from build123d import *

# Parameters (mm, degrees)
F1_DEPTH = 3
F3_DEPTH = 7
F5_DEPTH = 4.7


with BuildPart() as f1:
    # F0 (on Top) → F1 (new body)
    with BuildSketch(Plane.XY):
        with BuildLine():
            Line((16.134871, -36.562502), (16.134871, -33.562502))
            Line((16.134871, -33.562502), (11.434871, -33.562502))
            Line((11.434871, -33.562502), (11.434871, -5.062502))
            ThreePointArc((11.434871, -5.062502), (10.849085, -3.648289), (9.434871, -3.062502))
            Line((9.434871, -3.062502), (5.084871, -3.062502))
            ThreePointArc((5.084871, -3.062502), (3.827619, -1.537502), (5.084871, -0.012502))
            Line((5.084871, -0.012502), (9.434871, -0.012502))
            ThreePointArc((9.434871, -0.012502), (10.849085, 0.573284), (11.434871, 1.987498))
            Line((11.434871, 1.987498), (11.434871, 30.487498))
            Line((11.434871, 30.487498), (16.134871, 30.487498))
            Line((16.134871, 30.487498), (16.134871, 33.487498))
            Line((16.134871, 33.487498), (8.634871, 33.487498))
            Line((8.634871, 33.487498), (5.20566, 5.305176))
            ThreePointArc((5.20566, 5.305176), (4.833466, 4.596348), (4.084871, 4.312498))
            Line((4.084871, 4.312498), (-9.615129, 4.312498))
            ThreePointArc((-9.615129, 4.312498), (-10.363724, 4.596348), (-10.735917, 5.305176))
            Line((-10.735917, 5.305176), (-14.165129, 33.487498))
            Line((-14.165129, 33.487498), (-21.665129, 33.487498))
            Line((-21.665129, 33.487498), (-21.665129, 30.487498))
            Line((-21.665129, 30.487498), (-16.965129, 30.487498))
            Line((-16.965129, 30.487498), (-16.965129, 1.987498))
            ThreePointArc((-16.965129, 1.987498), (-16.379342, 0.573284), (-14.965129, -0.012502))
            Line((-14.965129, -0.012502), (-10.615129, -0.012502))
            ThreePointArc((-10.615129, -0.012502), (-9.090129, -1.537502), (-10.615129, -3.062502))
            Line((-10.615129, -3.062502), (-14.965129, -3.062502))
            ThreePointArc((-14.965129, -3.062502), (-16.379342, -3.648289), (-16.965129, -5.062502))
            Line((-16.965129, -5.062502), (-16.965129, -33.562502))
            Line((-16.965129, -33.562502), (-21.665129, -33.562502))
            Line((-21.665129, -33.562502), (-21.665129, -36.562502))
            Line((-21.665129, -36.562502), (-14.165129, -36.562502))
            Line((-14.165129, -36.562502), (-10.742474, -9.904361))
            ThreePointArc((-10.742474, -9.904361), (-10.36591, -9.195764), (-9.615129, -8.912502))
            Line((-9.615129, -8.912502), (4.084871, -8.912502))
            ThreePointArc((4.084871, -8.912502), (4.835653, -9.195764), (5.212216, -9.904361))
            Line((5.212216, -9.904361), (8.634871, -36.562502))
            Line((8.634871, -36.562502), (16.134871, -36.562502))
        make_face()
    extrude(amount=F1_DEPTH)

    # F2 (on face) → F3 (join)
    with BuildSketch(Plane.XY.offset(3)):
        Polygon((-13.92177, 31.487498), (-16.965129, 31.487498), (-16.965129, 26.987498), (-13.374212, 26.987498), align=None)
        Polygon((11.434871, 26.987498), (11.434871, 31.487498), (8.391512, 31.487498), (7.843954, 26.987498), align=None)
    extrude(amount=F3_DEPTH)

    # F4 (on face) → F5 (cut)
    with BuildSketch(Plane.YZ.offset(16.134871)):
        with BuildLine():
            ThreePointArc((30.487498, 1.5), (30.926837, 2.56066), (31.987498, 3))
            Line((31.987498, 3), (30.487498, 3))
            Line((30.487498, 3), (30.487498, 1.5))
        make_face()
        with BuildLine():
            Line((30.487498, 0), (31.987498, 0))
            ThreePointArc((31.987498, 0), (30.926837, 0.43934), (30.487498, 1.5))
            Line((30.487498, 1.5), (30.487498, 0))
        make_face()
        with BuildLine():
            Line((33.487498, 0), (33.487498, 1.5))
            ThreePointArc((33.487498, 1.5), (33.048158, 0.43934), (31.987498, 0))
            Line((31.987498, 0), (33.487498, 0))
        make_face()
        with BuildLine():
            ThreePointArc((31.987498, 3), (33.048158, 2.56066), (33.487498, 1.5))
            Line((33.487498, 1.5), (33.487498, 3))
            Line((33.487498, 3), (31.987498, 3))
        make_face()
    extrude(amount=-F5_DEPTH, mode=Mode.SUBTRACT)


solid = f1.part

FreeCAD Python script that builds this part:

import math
import FreeCAD as App
import Part
import Sketcher
from FreeCAD import Vector

doc = App.newDocument("Part")
body = doc.addObject("PartDesign::Body", "Body")

# Sketch on XY plane
sketch1 = body.newObject("Sketcher::SketchObject", "Sketch")
sketch1.AttachmentSupport = (doc.getObject("XY_Plane"), [""])
sketch1.MapMode = "FlatFace"
sketch1.addGeometry([
    Part.LineSegment(Vector(16.1, -36.6, 0), Vector(16.1, -33.6, 0)),  # 0
    Part.LineSegment(Vector(16.1, -33.6, 0), Vector(11.4, -33.6, 0)),  # 1
    Part.LineSegment(Vector(11.4, -33.6, 0), Vector(11.4, -5.1, 0)),  # 2
    Part.ArcOfCircle(Part.Circle(Vector(9.4, -5.1, 0), Vector(0, 0, 1), 2), math.radians(0), math.radians(90)),  # 3
    Part.LineSegment(Vector(9.4, -3.1, 0), Vector(5.1, -3.1, 0)),  # 4
    Part.ArcOfCircle(Part.Circle(Vector(5.4, -1.5, 0), Vector(0, 0, 1), 1.6), math.radians(101), math.radians(259)),  # 5
    Part.LineSegment(Vector(5.1, 0, 0), Vector(9.4, 0, 0)),  # 6
    Part.ArcOfCircle(Part.Circle(Vector(9.4, 2, 0), Vector(0, 0, 1), 2), math.radians(-90), math.radians(0)),  # 7
    Part.LineSegment(Vector(11.4, 2, 0), Vector(11.4, 30.5, 0)),  # 8
    Part.LineSegment(Vector(11.4, 30.5, 0), Vector(16.1, 30.5, 0)),  # 9
    Part.LineSegment(Vector(16.1, 30.5, 0), Vector(16.1, 33.5, 0)),  # 10
    Part.LineSegment(Vector(16.1, 33.5, 0), Vector(8.6, 33.5, 0)),  # 11
    Part.LineSegment(Vector(8.6, 33.5, 0), Vector(5.2, 5.3, 0)),  # 12
    Part.ArcOfCircle(Part.Circle(Vector(4.1, 5.4, 0), Vector(0, 0, 1), 1.1), math.radians(-90), math.radians(-7)),  # 13
    Part.LineSegment(Vector(4.1, 4.3, 0), Vector(-9.6, 4.3, 0)),  # 14
    Part.ArcOfCircle(Part.Circle(Vector(-9.6, 5.4, 0), Vector(0, 0, 1), 1.1), math.radians(-173), math.radians(-90)),  # 15
    Part.LineSegment(Vector(-10.7, 5.3, 0), Vector(-14.2, 33.5, 0)),  # 16
    Part.LineSegment(Vector(-14.2, 33.5, 0), Vector(-21.7, 33.5, 0)),  # 17
    Part.LineSegment(Vector(-21.7, 33.5, 0), Vector(-21.7, 30.5, 0)),  # 18
    Part.LineSegment(Vector(-21.7, 30.5, 0), Vector(-17, 30.5, 0)),  # 19
    Part.LineSegment(Vector(-17, 30.5, 0), Vector(-17, 2, 0)),  # 20
    Part.ArcOfCircle(Part.Circle(Vector(-15, 2, 0), Vector(0, 0, 1), 2), math.radians(-180), math.radians(-90)),  # 21
    Part.LineSegment(Vector(-15, 0, 0), Vector(-10.6, 0, 0)),  # 22
    Part.ArcOfCircle(Part.Circle(Vector(-10.6, -1.5, 0), Vector(0, 0, 1), 1.5), math.radians(-90), math.radians(90)),  # 23
    Part.LineSegment(Vector(-10.6, -3.1, 0), Vector(-15, -3.1, 0)),  # 24
    Part.ArcOfCircle(Part.Circle(Vector(-15, -5.1, 0), Vector(0, 0, 1), 2), math.radians(90), math.radians(180)),  # 25
    Part.LineSegment(Vector(-17, -5.1, 0), Vector(-17, -33.6, 0)),  # 26
    Part.LineSegment(Vector(-17, -33.6, 0), Vector(-21.7, -33.6, 0)),  # 27
    Part.LineSegment(Vector(-21.7, -33.6, 0), Vector(-21.7, -36.6, 0)),  # 28
    Part.LineSegment(Vector(-21.7, -36.6, 0), Vector(-14.2, -36.6, 0)),  # 29
    Part.LineSegment(Vector(-14.2, -36.6, 0), Vector(-10.7, -9.9, 0)),  # 30
    Part.ArcOfCircle(Part.Circle(Vector(-9.6, -10, 0), Vector(0, 0, 1), 1.1), math.radians(90), math.radians(173)),  # 31
    Part.LineSegment(Vector(-9.6, -8.9, 0), Vector(4.1, -8.9, 0)),  # 32
    Part.ArcOfCircle(Part.Circle(Vector(4.1, -10, 0), Vector(0, 0, 1), 1.1), math.radians(7), math.radians(90)),  # 33
    Part.LineSegment(Vector(5.2, -9.9, 0), Vector(8.6, -36.6, 0)),  # 34
    Part.LineSegment(Vector(8.6, -36.6, 0), Vector(16.1, -36.6, 0)),  # 35
], False)
sketch1.addConstraint([
    Sketcher.Constraint("Coincident", 0, 2, 1, 1),
    Sketcher.Constraint("Coincident", 1, 2, 2, 1),
    Sketcher.Constraint("Tangent", 2, 2, 3, 1),
    Sketcher.Constraint("Tangent", 3, 2, 4, 1),
    Sketcher.Constraint("Coincident", 4, 2, 5, 2),
    Sketcher.Constraint("Coincident", 5, 1, 6, 1),
    Sketcher.Constraint("Tangent", 6, 2, 7, 1),
    Sketcher.Constraint("Tangent", 7, 2, 8, 1),
    Sketcher.Constraint("Coincident", 8, 2, 9, 1),
    Sketcher.Constraint("Coincident", 9, 2, 10, 1),
    Sketcher.Constraint("Coincident", 10, 2, 11, 1),
    Sketcher.Constraint("Coincident", 11, 2, 12, 1),
    Sketcher.Constraint("Tangent", 12, 2, 13, 2),
    Sketcher.Constraint("Tangent", 13, 1, 14, 1),
    Sketcher.Constraint("Tangent", 14, 2, 15, 2),
    Sketcher.Constraint("Tangent", 15, 1, 16, 1),
    Sketcher.Constraint("Coincident", 16, 2, 17, 1),
    Sketcher.Constraint("Coincident", 17, 2, 18, 1),
    Sketcher.Constraint("Coincident", 18, 2, 19, 1),
    Sketcher.Constraint("Coincident", 19, 2, 20, 1),
    Sketcher.Constraint("Tangent", 20, 2, 21, 1),
    Sketcher.Constraint("Tangent", 21, 2, 22, 1),
    Sketcher.Constraint("Tangent", 22, 2, 23, 2),
    Sketcher.Constraint("Tangent", 23, 1, 24, 1),
    Sketcher.Constraint("Tangent", 24, 2, 25, 1),
    Sketcher.Constraint("Tangent", 25, 2, 26, 1),
    Sketcher.Constraint("Coincident", 26, 2, 27, 1),
    Sketcher.Constraint("Coincident", 27, 2, 28, 1),
    Sketcher.Constraint("Coincident", 28, 2, 29, 1),
    Sketcher.Constraint("Coincident", 29, 2, 30, 1),
    Sketcher.Constraint("Tangent", 30, 2, 31, 2),
    Sketcher.Constraint("Tangent", 31, 1, 32, 1),
    Sketcher.Constraint("Tangent", 32, 2, 33, 2),
    Sketcher.Constraint("Tangent", 33, 1, 34, 1),
    Sketcher.Constraint("Coincident", 34, 2, 35, 1),
    Sketcher.Constraint("Coincident", 35, 2, 0, 1),
    Sketcher.Constraint("Vertical", 0),
    Sketcher.Constraint("Horizontal", 1),
    Sketcher.Constraint("Vertical", 2),
    Sketcher.Constraint("Horizontal", 4),
    Sketcher.Constraint("Horizontal", 6),
    Sketcher.Constraint("Vertical", 8),
    Sketcher.Constraint("Horizontal", 9),
    Sketcher.Constraint("Vertical", 10),
    Sketcher.Constraint("Horizontal", 11),
    Sketcher.Constraint("Horizontal", 14),
    Sketcher.Constraint("Horizontal", 17),
    Sketcher.Constraint("Vertical", 18),
    Sketcher.Constraint("Horizontal", 19),
    Sketcher.Constraint("Vertical", 20),
    Sketcher.Constraint("Horizontal", 22),
    Sketcher.Constraint("Horizontal", 24),
    Sketcher.Constraint("Vertical", 26),
    Sketcher.Constraint("Horizontal", 27),
    Sketcher.Constraint("Vertical", 28),
    Sketcher.Constraint("Horizontal", 29),
    Sketcher.Constraint("Horizontal", 32),
    Sketcher.Constraint("Horizontal", 35),
    Sketcher.Constraint("Equal", 3, 7),
    Sketcher.Constraint("Equal", 13, 15),
    Sketcher.Constraint("Equal", 7, 21),
    Sketcher.Constraint("Equal", 21, 25),
    Sketcher.Constraint("Equal", 31, 33),
    Sketcher.Constraint("Horizontal", 7, 3, 21, 3),
    Sketcher.Constraint("Horizontal", 5, 3, 23, 3),
    Sketcher.Constraint("Horizontal", 3, 3, 25, 3),
    Sketcher.Constraint("Horizontal", 12, 2, 15, 1),
    Sketcher.Constraint("Horizontal", 11, 2, 16, 2),
    Sketcher.Constraint("Horizontal", 9, 2, 18, 2),
    Sketcher.Constraint("Horizontal", 1, 2, 26, 2),
    Sketcher.Constraint("Horizontal", 30, 2, 33, 1),
    Sketcher.Constraint("Horizontal", 29, 2, 34, 2),
    Sketcher.Constraint("Vertical", 3, 3, 7, 3),
    Sketcher.Constraint("Vertical", 21, 3, 25, 3),
    Sketcher.Constraint("Vertical", 13, 3, 33, 3),
    Sketcher.Constraint("Vertical", 0, 2, 9, 2),
    Sketcher.Constraint("Vertical", 31, 3, 14, 2),
    Sketcher.Constraint("Vertical", 18, 2, 27, 2),
    Sketcher.Constraint("Vertical", 16, 2, 29, 2),
    Sketcher.Constraint("Equal", 11, 17),
    Sketcher.Constraint("Equal", 9, 19),
    Sketcher.Constraint("Equal", 6, 22),
    Sketcher.Constraint("Equal", 2, 8),
    Sketcher.Constraint("Equal", 0, 10),
    Sketcher.Constraint("Radius", 3, 2.0),
    Sketcher.Constraint("DistanceY", 0, 1, 0, 2, 3.0),
    Sketcher.Constraint("DistanceX", 1, 2, 1, 1, 4.7),
    Sketcher.Constraint("DistanceX", 11, 2, 11, 1, 7.5),
    Sketcher.Constraint("DistanceX", 14, 2, 14, 1, 13.7),
    Sketcher.Constraint("DistanceY", 2, 1, 2, 2, 28.5),
    Sketcher.Constraint("Radius", 23, 1.525),
    Sketcher.Constraint("DistanceX", 23, 3, 15, 3, 0.999999),
    Sketcher.Constraint("DistanceX", 4, 2, 4, 1, 4.35),
    Sketcher.Constraint("Radius", 31, 1.1366),
    Sketcher.Constraint("Radius", 5, 1.55351),
    Sketcher.Constraint("DistanceY", 5, 3, 13, 1, 5.85),
    Sketcher.Constraint("DistanceY", 31, 1, 23, 1, 5.85),
    Sketcher.Constraint("Radius", 13, 1.129055),
    Sketcher.Constraint("DistanceY", 5, 3, -1, 1, 1.537502),
    Sketcher.Constraint("DistanceX", -1, 1, 3, 3, 9.434871),
])
pad1 = body.newObject("PartDesign::Pad", "Pad")
pad1.Profile = sketch1
pad1.Length = 3

# Sketch on XY plane
sketch2 = body.newObject("Sketcher::SketchObject", "Sketch001")
sketch2.AttachmentSupport = (doc.getObject("XY_Plane"), [""])
sketch2.MapMode = "FlatFace"
sketch2.AttachmentOffset = App.Placement(Vector(0, 0, 3), App.Rotation())
sketch2.addGeometry([
    Part.LineSegment(Vector(-13.9, 31.5, 0), Vector(-17, 31.5, 0)),  # 0
    Part.LineSegment(Vector(-17, 31.5, 0), Vector(-17, 27, 0)),  # 1
    Part.LineSegment(Vector(-17, 27, 0), Vector(-13.4, 27, 0)),  # 2
    Part.LineSegment(Vector(-13.4, 27, 0), Vector(-13.9, 31.5, 0)),  # 3
    Part.LineSegment(Vector(11.4, 27, 0), Vector(11.4, 31.5, 0)),  # 4
    Part.LineSegment(Vector(11.4, 31.5, 0), Vector(8.4, 31.5, 0)),  # 5
    Part.LineSegment(Vector(8.4, 31.5, 0), Vector(7.8, 27, 0)),  # 6
    Part.LineSegment(Vector(7.8, 27, 0), Vector(11.4, 27, 0)),  # 7
], False)
sketch2.addConstraint([
    Sketcher.Constraint("Coincident", 0, 2, 1, 1),
    Sketcher.Constraint("Coincident", 1, 2, 2, 1),
    Sketcher.Constraint("Coincident", 2, 2, 3, 1),
    Sketcher.Constraint("Coincident", 3, 2, 0, 1),
    Sketcher.Constraint("Coincident", 4, 2, 5, 1),
    Sketcher.Constraint("Coincident", 5, 2, 6, 1),
    Sketcher.Constraint("Coincident", 6, 2, 7, 1),
    Sketcher.Constraint("Coincident", 7, 2, 4, 1),
    Sketcher.Constraint("Horizontal", 0),
    Sketcher.Constraint("Vertical", 1),
    Sketcher.Constraint("Horizontal", 2),
    Sketcher.Constraint("Vertical", 4),
    Sketcher.Constraint("Horizontal", 5),
    Sketcher.Constraint("Horizontal", 7),
    Sketcher.Constraint("Horizontal", 3, 2, 4, 2),
    Sketcher.Constraint("Horizontal", 2, 2, 6, 2),
    Sketcher.Constraint("Equal", 0, 5),
    Sketcher.Constraint("Equal", 2, 7),
    Sketcher.Constraint("DistanceY", 1, 2, 1, 1, 4.5),
    Sketcher.Constraint("DistanceX", 0, 2, 4, 2, 28.4),
    Sketcher.Constraint("DistanceX", 0, 2, 0, 1, 3.043359),
    Sketcher.Constraint("Distance", 3, 4.533191),
    Sketcher.Constraint("DistanceX", 0, 2, -1, 1, 16.965129),
    Sketcher.Constraint("DistanceY", -1, 1, 0, 2, 31.487498),
])
pad2 = body.newObject("PartDesign::Pad", "Pad001")
pad2.Profile = sketch2
pad2.Length = 7

# Sketch on YZ plane
sketch3 = body.newObject("Sketcher::SketchObject", "Sketch002")
sketch3.AttachmentSupport = (doc.getObject("YZ_Plane"), [""])
sketch3.MapMode = "FlatFace"
sketch3.AttachmentOffset = App.Placement(Vector(0, 0, 16.134871), App.Rotation())
sketch3.addGeometry([
    Part.ArcOfCircle(Part.Circle(Vector(32, 1.5, 0), Vector(0, 0, 1), 1.5), math.radians(90), math.radians(180)),  # 0
    Part.LineSegment(Vector(32, 3, 0), Vector(30.5, 3, 0)),  # 1
    Part.LineSegment(Vector(30.5, 3, 0), Vector(30.5, 1.5, 0)),  # 2
    Part.LineSegment(Vector(30.5, 0, 0), Vector(32, 0, 0)),  # 3
    Part.ArcOfCircle(Part.Circle(Vector(32, 1.5, 0), Vector(0, 0, 1), 1.5), math.radians(180), math.radians(270)),  # 4
    Part.LineSegment(Vector(30.5, 1.5, 0), Vector(30.5, 0, 0)),  # 5
    Part.LineSegment(Vector(33.5, 0, 0), Vector(33.5, 1.5, 0)),  # 6
    Part.ArcOfCircle(Part.Circle(Vector(32, 1.5, 0), Vector(0, 0, 1), 1.5), math.radians(-90), math.radians(0)),  # 7
    Part.LineSegment(Vector(32, 0, 0), Vector(33.5, 0, 0)),  # 8
    Part.ArcOfCircle(Part.Circle(Vector(32, 1.5, 0), Vector(0, 0, 1), 1.5), math.radians(0), math.radians(90)),  # 9
    Part.LineSegment(Vector(33.5, 1.5, 0), Vector(33.5, 3, 0)),  # 10
    Part.LineSegment(Vector(33.5, 3, 0), Vector(32, 3, 0)),  # 11
], False)
sketch3.addConstraint([
    Sketcher.Constraint("Tangent", 0, 1, 1, 1),
    Sketcher.Constraint("Coincident", 1, 2, 2, 1),
    Sketcher.Constraint("Tangent", 2, 2, 0, 2),
    Sketcher.Constraint("Tangent", 3, 2, 4, 2),
    Sketcher.Constraint("Tangent", 4, 1, 5, 1),
    Sketcher.Constraint("Coincident", 5, 2, 3, 1),
    Sketcher.Constraint("Tangent", 6, 2, 7, 2),
    Sketcher.Constraint("Tangent", 7, 1, 8, 1),
    Sketcher.Constraint("Coincident", 8, 2, 6, 1),
    Sketcher.Constraint("Tangent", 9, 1, 10, 1),
    Sketcher.Constraint("Coincident", 10, 2, 11, 1),
    Sketcher.Constraint("Tangent", 11, 2, 9, 2),
    Sketcher.Constraint("Horizontal", 1),
    Sketcher.Constraint("Vertical", 2),
    Sketcher.Constraint("Horizontal", 3),
    Sketcher.Constraint("Vertical", 5),
    Sketcher.Constraint("Vertical", 6),
    Sketcher.Constraint("Horizontal", 8),
    Sketcher.Constraint("Vertical", 10),
    Sketcher.Constraint("Horizontal", 11),
    Sketcher.Constraint("Coincident", 4, 3, 0, 3),
    Sketcher.Constraint("Coincident", 7, 3, 0, 3),
    Sketcher.Constraint("Coincident", 9, 3, 0, 3),
    Sketcher.Constraint("Equal", 0, 4),
    Sketcher.Constraint("Equal", 4, 7),
    Sketcher.Constraint("Equal", 7, 9),
    Sketcher.Constraint("PointOnObject", 3, 2, -1),
    Sketcher.Constraint("Radius", 0, 1.499999),
    Sketcher.Constraint("DistanceX", -1, 1, 4, 1, 30.487498),
])
pocket1 = body.newObject("PartDesign::Pocket", "Pocket")
pocket1.Profile = sketch3
pocket1.Length = 4.7

doc.recompute()
